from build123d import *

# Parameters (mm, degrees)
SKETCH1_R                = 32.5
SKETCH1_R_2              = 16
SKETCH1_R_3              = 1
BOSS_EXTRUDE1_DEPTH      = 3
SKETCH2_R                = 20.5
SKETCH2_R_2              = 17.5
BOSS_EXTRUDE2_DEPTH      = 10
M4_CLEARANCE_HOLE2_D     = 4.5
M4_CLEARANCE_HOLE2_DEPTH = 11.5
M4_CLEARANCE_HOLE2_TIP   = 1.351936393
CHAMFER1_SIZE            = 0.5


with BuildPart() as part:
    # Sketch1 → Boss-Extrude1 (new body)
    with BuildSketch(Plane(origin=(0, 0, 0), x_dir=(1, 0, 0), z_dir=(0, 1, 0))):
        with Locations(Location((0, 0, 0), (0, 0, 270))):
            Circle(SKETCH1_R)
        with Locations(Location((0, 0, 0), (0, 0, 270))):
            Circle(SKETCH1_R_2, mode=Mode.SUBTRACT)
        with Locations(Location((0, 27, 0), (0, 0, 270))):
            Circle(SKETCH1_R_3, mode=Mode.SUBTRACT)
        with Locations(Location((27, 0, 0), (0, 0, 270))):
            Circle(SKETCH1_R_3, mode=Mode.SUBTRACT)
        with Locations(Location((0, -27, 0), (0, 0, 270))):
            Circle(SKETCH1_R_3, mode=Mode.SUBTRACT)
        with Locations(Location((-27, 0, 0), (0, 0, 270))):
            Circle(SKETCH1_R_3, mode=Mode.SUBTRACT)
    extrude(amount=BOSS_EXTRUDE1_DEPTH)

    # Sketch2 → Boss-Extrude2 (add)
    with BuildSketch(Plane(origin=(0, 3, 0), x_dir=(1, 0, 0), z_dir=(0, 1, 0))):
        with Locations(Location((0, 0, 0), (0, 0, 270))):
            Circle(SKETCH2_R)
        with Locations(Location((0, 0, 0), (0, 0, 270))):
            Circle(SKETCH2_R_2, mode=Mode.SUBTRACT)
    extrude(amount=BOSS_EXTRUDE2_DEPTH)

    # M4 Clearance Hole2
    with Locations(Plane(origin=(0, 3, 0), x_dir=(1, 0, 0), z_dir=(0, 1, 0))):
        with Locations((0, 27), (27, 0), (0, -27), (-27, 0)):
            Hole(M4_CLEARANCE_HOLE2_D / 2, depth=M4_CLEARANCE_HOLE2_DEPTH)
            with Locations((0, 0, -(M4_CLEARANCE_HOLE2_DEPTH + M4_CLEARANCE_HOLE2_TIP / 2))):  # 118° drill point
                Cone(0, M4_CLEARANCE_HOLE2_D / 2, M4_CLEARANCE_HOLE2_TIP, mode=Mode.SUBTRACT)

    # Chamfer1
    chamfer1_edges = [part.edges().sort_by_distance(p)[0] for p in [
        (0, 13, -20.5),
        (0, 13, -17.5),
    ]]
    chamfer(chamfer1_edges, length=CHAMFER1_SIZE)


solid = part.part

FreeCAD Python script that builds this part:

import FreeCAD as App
import Part
import Sketcher


def edges_at(feature, points):
    """Names of the edges that pass closest to the given points."""
    edges = feature.Shape.Edges
    near = lambda p: min(range(len(edges)), key=lambda i: edges[i].distToShape(Part.Vertex(*p))[0])
    return sorted({f"Edge{near(p) + 1}" for p in points})

doc = App.newDocument("Part")
body = doc.addObject("PartDesign::Body", "Body")

# Sketch on XZ plane
sketch1 = body.newObject("Sketcher::SketchObject", "Sketch")
sketch1.AttachmentSupport = (doc.getObject("XZ_Plane"), [""])
sketch1.MapMode = "FlatFace"
sketch1.addGeometry([
    Part.Circle(App.Vector(0, 0, 0), App.Vector(0, 0, 1), 32.5),  # 0
    Part.Circle(App.Vector(0, -27, 0), App.Vector(0, 0, 1), 1),  # 1
    Part.Circle(App.Vector(-27, 0, 0), App.Vector(0, 0, 1), 1),  # 2
    Part.Circle(App.Vector(27, 0, 0), App.Vector(0, 0, 1), 1),  # 3
    Part.Circle(App.Vector(0, 0, 0), App.Vector(0, 0, 1), 16),  # 4
    Part.Circle(App.Vector(0, 27, 0), App.Vector(0, 0, 1), 1),  # 5
], False)
sketch1.addConstraint([
    Sketcher.Constraint("Coincident", 0, 3, -1, 1),
    Sketcher.Constraint("Coincident", 4, 3, -1, 1),
    Sketcher.Constraint("Equal", 1, 2),
    Sketcher.Constraint("Equal", 2, 3),
    Sketcher.Constraint("Equal", 3, 5),
    Sketcher.Constraint("Symmetric", 2, 3, 3, 3, -1, 1),
    Sketcher.Constraint("Symmetric", 1, 3, 5, 3, -1, 1),
    Sketcher.Constraint("PointOnObject", 1, 3, -2),
    Sketcher.Constraint("PointOnObject", 2, 3, -1),
    Sketcher.Constraint("Diameter", 0, 65.0),
    Sketcher.Constraint("Diameter", 1, 2.0),
    Sketcher.Constraint("Diameter", 4, 32.0),
    Sketcher.Constraint("DistanceY", 1, 3, -1, 1, 27.0),
    Sketcher.Constraint("DistanceX", 2, 3, -1, 1, 27.0),
])
pad1 = body.newObject("PartDesign::Pad", "Pad")
pad1.Profile = sketch1
pad1.Length = 3
pad1.Reversed = True

# Sketch on XZ plane
sketch2 = body.newObject("Sketcher::SketchObject", "Sketch001")
sketch2.AttachmentSupport = (doc.getObject("XZ_Plane"), [""])
sketch2.MapMode = "FlatFace"
sketch2.AttachmentOffset = App.Placement(App.Vector(0, 0, -3), App.Rotation())
sketch2.addGeometry([
    Part.Circle(App.Vector(0, 0, 0), App.Vector(0, 0, 1), 20),
    Part.Circle(App.Vector(0, 0, 0), App.Vector(0, 0, 1), 18),
], False)
sketch2.addConstraint([
    Sketcher.Constraint("Coincident", 0, 3, -1, 1),
    Sketcher.Constraint("Coincident", 1, 3, -1, 1),
    Sketcher.Constraint("Diameter", 0, 41.0),
    Sketcher.Constraint("Diameter", 1, 35.0),
])
pad2 = body.newObject("PartDesign::Pad", "Pad001")
pad2.Profile = sketch2
pad2.Length = 10
pad2.Reversed = True

# Sketch on XZ plane
sketch3 = body.newObject("Sketcher::SketchObject", "Sketch002")
sketch3.AttachmentSupport = (doc.getObject("XZ_Plane"), [""])
sketch3.MapMode = "FlatFace"
sketch3.AttachmentOffset = App.Placement(App.Vector(0, 0, -3), App.Rotation())
sketch3.addGeometry([
    Part.Circle(App.Vector(0, -27, 0), App.Vector(0, 0, 1), 2.2),
    Part.Circle(App.Vector(27, 0, 0), App.Vector(0, 0, 1), 2.2),
    Part.Circle(App.Vector(0, 27, 0), App.Vector(0, 0, 1), 2.2),
    Part.Circle(App.Vector(-27, 0, 0), App.Vector(0, 0, 1), 2.2),
], False)
sketch3.addConstraint([
    Sketcher.Constraint("Equal", 0, 1),
    Sketcher.Constraint("Equal", 1, 2),
    Sketcher.Constraint("Equal", 2, 3),
    Sketcher.Constraint("Symmetric", 0, 3, 2, 3, -1, 1),
    Sketcher.Constraint("Symmetric", 1, 3, 3, 3, -1, 1),
    Sketcher.Constraint("PointOnObject", 0, 3, -2),
    Sketcher.Constraint("PointOnObject", 1, 3, -1),
    Sketcher.Constraint("Diameter", 0, 4.5),
    Sketcher.Constraint("DistanceY", 0, 3, -1, 1, 27.0),
    Sketcher.Constraint("DistanceX", -1, 1, 1, 3, 27.0),
])
doc.recompute()
hole = body.newObject("PartDesign::Hole", "Hole")
hole.Profile = sketch3
hole.ThreadType = "None"
hole.Diameter = 4.5
hole.DepthType = "Dimension"
hole.Depth = 11.5
hole.DrillPoint = "Angled"
hole.DrillPointAngle = 118
hole.Reversed = True
doc.recompute()

chamfer = body.newObject("PartDesign::Chamfer", "Chamfer")
chamfer.Base = (hole, edges_at(hole, [(0, 13, -20.5), (0, 13, -17.5)]))
chamfer.Size = 0.5

doc.recompute()
